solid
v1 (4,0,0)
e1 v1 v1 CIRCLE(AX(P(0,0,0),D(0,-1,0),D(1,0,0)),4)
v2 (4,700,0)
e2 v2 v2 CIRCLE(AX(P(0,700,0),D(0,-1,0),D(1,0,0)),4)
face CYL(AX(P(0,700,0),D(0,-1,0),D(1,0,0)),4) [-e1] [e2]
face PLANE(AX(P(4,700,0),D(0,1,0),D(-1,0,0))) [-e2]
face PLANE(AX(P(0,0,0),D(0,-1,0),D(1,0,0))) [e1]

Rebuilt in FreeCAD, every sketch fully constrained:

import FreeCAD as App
import Part
import Sketcher

V = App.Vector
Q = App.Units.Quantity


def add_polygon(sketch, points):
    """Adds a closed chain of lines whose ends are joined by coincident constraints."""
    first, n = sketch.GeometryCount, len(points)
    for a, b in zip(points, points[1:] + points[:1]):
        sketch.addGeometry(Part.LineSegment(App.Vector(*a, 0), App.Vector(*b, 0)), False)
    for i in range(n):
        sketch.addConstraint(Sketcher.Constraint("Coincident", first + i, 2, first + (i + 1) % n, 1))

doc = App.newDocument("Part")
body = doc.addObject("PartDesign::Body", "Body")

# Sketch on XY plane
sketch1 = doc.addObject("Sketcher::SketchObject", "Sketch")
body.addObject(sketch1)
sketch1.AttachmentSupport = (doc.XY_Plane, [""])
sketch1.MapMode = "FlatFace"
add_polygon(sketch1, [(0, 700), (0, 0), (4, 0), (4, 700)])  # lines 0-3
sketch1.addConstraint([
    Sketcher.Constraint("Vertical", 0),
    Sketcher.Constraint("Horizontal", 1),
    Sketcher.Constraint("Vertical", 2),
    Sketcher.Constraint("Horizontal", 3),
    Sketcher.Constraint("Coincident", 0, 2, -1, 1),
    Sketcher.Constraint("DistanceX", 1, 1, 1, 2, Q("4 mm")),
    Sketcher.Constraint("DistanceY", 0, 2, 0, 1, Q("700 mm")),
])
revolution = doc.addObject("PartDesign::Revolution", "Revolution")
body.addObject(revolution)
revolution.Profile = sketch1
revolution.ReferenceAxis = (sketch1, ["V_Axis"])
revolution.Angle = 360

doc.recompute()
